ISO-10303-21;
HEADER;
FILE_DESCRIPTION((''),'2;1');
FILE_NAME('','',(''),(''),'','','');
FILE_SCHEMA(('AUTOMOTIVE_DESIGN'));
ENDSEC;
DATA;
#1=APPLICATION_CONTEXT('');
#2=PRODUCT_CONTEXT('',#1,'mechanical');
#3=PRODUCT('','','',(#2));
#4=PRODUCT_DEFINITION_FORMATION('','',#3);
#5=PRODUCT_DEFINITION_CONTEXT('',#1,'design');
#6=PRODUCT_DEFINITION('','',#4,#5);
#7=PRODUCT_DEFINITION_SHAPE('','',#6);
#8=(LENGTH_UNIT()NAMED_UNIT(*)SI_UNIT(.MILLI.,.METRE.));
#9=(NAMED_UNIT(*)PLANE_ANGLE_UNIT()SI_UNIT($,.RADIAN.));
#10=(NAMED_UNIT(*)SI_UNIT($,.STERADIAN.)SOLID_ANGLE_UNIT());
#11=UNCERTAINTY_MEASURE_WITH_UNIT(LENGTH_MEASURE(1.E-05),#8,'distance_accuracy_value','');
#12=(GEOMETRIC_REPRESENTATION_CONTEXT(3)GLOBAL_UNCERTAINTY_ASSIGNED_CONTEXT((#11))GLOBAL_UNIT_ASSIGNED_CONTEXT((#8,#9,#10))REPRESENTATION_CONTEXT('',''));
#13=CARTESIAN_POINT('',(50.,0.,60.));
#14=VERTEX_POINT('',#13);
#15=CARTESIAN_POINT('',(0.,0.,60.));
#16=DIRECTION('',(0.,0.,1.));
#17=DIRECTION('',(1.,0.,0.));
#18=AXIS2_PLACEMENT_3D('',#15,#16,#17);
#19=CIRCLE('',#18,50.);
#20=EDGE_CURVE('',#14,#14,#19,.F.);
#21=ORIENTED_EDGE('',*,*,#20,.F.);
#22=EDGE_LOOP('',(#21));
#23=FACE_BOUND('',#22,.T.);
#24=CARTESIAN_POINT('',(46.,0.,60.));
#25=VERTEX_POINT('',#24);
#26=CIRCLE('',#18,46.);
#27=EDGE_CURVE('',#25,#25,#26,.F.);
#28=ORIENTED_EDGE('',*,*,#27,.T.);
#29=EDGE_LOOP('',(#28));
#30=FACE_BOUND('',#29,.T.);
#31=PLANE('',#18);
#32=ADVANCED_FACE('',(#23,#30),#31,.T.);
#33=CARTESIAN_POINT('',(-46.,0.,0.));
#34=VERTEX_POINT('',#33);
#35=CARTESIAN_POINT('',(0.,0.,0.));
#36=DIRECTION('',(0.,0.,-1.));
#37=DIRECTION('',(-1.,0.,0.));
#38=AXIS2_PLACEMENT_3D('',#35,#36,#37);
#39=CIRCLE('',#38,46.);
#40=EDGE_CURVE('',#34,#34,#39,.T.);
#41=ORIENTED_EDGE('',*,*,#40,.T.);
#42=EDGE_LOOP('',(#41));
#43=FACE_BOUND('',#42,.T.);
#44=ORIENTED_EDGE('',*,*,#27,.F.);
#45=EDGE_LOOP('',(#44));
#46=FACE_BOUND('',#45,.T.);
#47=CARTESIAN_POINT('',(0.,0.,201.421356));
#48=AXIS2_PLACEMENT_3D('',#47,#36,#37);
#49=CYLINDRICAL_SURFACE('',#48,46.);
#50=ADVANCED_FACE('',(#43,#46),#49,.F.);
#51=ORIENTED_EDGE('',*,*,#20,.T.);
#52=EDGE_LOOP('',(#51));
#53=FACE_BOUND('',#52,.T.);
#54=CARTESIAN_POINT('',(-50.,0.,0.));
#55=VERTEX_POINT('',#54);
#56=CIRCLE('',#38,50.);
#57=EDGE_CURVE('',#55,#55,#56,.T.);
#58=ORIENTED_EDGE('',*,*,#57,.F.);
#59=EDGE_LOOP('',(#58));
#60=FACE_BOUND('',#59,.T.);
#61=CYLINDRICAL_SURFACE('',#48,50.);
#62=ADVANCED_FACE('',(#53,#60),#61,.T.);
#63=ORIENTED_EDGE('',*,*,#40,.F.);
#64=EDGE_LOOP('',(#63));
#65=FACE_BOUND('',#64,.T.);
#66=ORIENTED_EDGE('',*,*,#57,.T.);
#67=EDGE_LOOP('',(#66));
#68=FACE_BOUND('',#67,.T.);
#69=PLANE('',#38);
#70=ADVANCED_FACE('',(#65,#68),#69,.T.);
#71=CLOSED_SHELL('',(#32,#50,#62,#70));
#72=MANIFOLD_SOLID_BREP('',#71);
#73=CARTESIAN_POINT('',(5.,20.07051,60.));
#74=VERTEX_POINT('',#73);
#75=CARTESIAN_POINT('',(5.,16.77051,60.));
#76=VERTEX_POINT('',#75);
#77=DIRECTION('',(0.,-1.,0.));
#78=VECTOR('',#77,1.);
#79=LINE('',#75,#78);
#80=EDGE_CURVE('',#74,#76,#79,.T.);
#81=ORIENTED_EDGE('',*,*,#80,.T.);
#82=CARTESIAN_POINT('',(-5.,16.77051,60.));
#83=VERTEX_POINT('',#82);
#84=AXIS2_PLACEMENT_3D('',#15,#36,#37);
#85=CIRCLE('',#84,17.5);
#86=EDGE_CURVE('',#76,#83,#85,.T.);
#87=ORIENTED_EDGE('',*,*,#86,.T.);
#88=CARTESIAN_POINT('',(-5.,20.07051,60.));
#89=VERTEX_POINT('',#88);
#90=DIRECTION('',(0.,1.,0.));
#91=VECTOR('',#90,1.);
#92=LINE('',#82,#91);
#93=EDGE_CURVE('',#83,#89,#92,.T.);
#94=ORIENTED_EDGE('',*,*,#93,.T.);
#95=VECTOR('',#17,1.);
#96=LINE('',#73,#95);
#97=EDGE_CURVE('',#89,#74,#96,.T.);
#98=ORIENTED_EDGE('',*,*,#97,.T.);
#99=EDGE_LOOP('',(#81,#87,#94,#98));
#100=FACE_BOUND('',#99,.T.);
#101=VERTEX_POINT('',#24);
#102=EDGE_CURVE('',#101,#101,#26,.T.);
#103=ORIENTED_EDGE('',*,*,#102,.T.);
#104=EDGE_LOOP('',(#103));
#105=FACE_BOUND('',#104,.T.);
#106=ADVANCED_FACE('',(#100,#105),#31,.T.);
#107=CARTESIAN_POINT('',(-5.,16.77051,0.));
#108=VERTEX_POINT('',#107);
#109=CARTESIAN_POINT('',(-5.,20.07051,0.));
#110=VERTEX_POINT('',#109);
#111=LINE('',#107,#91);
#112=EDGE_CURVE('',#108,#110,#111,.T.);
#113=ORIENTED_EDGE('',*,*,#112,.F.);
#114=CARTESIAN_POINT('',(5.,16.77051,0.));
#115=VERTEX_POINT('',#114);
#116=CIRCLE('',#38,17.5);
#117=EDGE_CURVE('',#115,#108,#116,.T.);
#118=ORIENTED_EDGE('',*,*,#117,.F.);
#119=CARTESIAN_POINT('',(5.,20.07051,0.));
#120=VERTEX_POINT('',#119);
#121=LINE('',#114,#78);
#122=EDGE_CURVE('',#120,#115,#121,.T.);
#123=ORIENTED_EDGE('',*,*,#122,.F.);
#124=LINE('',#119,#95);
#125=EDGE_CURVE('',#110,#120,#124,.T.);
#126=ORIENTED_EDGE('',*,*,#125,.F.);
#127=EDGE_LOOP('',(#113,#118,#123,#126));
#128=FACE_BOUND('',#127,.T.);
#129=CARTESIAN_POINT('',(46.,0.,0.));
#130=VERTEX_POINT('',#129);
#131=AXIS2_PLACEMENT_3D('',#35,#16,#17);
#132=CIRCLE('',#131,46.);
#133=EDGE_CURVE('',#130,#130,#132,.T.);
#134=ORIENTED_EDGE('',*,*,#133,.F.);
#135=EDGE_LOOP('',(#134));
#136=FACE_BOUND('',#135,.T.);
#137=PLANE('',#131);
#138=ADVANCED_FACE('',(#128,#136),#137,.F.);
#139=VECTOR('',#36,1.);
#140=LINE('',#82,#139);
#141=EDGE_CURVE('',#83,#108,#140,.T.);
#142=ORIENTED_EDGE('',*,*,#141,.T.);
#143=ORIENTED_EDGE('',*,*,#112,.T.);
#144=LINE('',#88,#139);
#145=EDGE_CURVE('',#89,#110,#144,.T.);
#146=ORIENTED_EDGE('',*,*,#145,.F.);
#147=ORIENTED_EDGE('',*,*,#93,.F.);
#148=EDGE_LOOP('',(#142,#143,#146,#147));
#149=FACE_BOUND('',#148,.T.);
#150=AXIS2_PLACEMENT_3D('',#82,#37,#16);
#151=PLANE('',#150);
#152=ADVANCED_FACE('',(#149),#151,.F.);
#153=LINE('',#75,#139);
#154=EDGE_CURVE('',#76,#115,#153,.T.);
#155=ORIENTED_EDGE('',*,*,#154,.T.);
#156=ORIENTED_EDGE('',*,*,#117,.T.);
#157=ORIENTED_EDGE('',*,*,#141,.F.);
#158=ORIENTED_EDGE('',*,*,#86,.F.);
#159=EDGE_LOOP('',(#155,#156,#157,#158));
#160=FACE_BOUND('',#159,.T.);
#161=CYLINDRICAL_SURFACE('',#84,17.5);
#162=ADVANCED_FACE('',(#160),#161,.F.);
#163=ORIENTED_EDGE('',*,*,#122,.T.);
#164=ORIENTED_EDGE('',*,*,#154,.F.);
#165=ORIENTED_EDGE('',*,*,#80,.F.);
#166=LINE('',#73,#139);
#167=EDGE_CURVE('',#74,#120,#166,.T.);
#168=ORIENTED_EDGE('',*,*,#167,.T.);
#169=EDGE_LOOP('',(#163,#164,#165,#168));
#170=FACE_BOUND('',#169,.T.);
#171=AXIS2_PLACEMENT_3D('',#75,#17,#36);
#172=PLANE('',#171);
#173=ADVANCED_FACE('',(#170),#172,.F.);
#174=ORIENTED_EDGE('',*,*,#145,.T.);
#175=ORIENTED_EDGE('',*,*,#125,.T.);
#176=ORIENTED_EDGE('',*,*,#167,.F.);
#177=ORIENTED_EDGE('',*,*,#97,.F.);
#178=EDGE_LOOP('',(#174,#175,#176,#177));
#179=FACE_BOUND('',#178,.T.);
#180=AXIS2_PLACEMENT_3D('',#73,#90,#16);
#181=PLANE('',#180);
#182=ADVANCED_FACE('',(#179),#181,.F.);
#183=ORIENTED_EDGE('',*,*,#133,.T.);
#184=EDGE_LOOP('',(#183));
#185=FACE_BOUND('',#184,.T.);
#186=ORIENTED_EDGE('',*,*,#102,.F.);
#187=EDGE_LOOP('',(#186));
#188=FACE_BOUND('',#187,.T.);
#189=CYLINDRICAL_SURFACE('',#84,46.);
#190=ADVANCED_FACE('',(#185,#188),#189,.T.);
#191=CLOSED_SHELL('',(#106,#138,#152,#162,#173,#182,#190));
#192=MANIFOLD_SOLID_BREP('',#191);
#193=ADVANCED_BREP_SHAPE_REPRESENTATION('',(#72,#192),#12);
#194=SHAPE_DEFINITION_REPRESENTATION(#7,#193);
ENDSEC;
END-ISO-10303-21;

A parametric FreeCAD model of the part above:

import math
import FreeCAD as App
import Part
import Sketcher

V = App.Vector
Q = App.Units.Quantity

doc = App.newDocument("Part")
params = doc.addObject("Spreadsheet::Sheet", "Params")
for row, (alias, value) in enumerate([
    ("sketch1_diameter", "92 mm"),
    ("pad1_length", "60 mm"),
    ("sketch2_diameter", "35 mm"),
    ("sketch3_radius", "17.5 mm"),
    ("sketch3_width", "10 mm"),
    ("sketch3_height", "3.3 mm"),
    ("sketch4_diameter", "100 mm"),
    ("sketch4_diameter2", "92 mm"),
    ("pad2_length", "60 mm"),
], start=1):
    params.set(f"A{row}", alias)
    params.set(f"B{row}", "=" + value)
    params.setAlias(f"B{row}", alias)

body = doc.addObject("PartDesign::Body", "Body")

# Sketch on XY plane
sketch1 = doc.addObject("Sketcher::SketchObject", "Sketch")
body.addObject(sketch1)
sketch1.AttachmentSupport = (doc.XY_Plane, [""])
sketch1.MapMode = "FlatFace"
sketch1.addGeometry(Part.Circle(V(0, 0, 0), V(0, 0, 1), 46), False)
sketch1.addConstraint(Sketcher.Constraint("Coincident", 0, 3, -1, 1))
sketch1.addConstraint(Sketcher.Constraint("Diameter", 0, Q("92 mm")))
sketch1.setExpression("Constraints[1]", "Params.sketch1_diameter")
pad1 = doc.addObject("PartDesign::Pad", "Pad")
body.addObject(pad1)
pad1.Profile = sketch1
pad1.setExpression("Length", "Params.pad1_length")

# Sketch on XY plane
sketch2 = doc.addObject("Sketcher::SketchObject", "Sketch001")
body.addObject(sketch2)
sketch2.AttachmentSupport = (doc.XY_Plane, [""])
sketch2.MapMode = "FlatFace"
sketch2.addGeometry(Part.Circle(V(0, 0, 0), V(0, 0, 1), 17.5), False)
sketch2.addConstraint(Sketcher.Constraint("Coincident", 0, 3, -1, 1))
sketch2.addConstraint(Sketcher.Constraint("Diameter", 0, Q("35 mm")))
sketch2.setExpression("Constraints[1]", "Params.sketch2_diameter")
pocket1 = doc.addObject("PartDesign::Pocket", "Pocket")
body.addObject(pocket1)
pocket1.Profile = sketch2
pocket1.Type = "ThroughAll"
pocket1.Reversed = True

# Sketch on XY plane
sketch3 = doc.addObject("Sketcher::SketchObject", "Sketch002")
body.addObject(sketch3)
sketch3.AttachmentSupport = (doc.XY_Plane, [""])
sketch3.MapMode = "FlatFace"
sketch3.addGeometry(Part.LineSegment(V(5, 20.07051, 0), V(5, 16.77051, 0)), False)
sketch3.addGeometry(Part.ArcOfCircle(Part.Circle(V(0, 0, 0), V(0, 0, 1), 17.5), math.radians(73.39845), math.radians(106.60155)), False)
sketch3.addGeometry(Part.LineSegment(V(-5, 16.77051, 0), V(-5, 20.07051, 0)), False)
sketch3.addGeometry(Part.LineSegment(V(-5, 20.07051, 0), V(5, 20.07051, 0)), False)
sketch3.addConstraint(Sketcher.Constraint("Coincident", 0, 2, 1, 1))
sketch3.addConstraint(Sketcher.Constraint("Coincident", 1, 2, 2, 1))
sketch3.addConstraint(Sketcher.Constraint("Coincident", 2, 2, 3, 1))
sketch3.addConstraint(Sketcher.Constraint("Coincident", 3, 2, 0, 1))
sketch3.addConstraint(Sketcher.Constraint("Vertical", 0))
sketch3.addConstraint(Sketcher.Constraint("Vertical", 2))
sketch3.addConstraint(Sketcher.Constraint("Horizontal", 3))
sketch3.addConstraint(Sketcher.Constraint("Coincident", 1, 3, -1, 1))
sketch3.addConstraint(Sketcher.Constraint("Horizontal", 0, 2, 1, 2))
sketch3.addConstraint(Sketcher.Constraint("Radius", 1, Q("17.5 mm")))
sketch3.addConstraint(Sketcher.Constraint("DistanceX", 3, 1, 3, 2, Q("10 mm")))
sketch3.addConstraint(Sketcher.Constraint("DistanceY", 0, 2, 0, 1, Q("3.3 mm")))
sketch3.setExpression("Constraints[9]", "Params.sketch3_radius")
sketch3.setExpression("Constraints[10]", "Params.sketch3_width")
sketch3.setExpression("Constraints[11]", "Params.sketch3_height")
pocket2 = doc.addObject("PartDesign::Pocket", "Pocket001")
body.addObject(pocket2)
pocket2.Profile = sketch3
pocket2.Type = "ThroughAll"
pocket2.Reversed = True
body2 = doc.addObject("PartDesign::Body", "Body001")

# Sketch on XY plane
sketch4 = doc.addObject("Sketcher::SketchObject", "Sketch003")
body2.addObject(sketch4)
sketch4.AttachmentSupport = (doc.getObject("XY_Plane001"), [""])
sketch4.MapMode = "FlatFace"
sketch4.addGeometry(Part.Circle(V(0, 0, 0), V(0, 0, 1), 50), False)
sketch4.addGeometry(Part.Circle(V(0, 0, 0), V(0, 0, 1), 46), False)
sketch4.addConstraint(Sketcher.Constraint("Coincident", 0, 3, -1, 1))
sketch4.addConstraint(Sketcher.Constraint("Coincident", 1, 3, -1, 1))
sketch4.addConstraint(Sketcher.Constraint("Diameter", 0, Q("100 mm")))
sketch4.addConstraint(Sketcher.Constraint("Diameter", 1, Q("92 mm")))
sketch4.setExpression("Constraints[2]", "Params.sketch4_diameter")
sketch4.setExpression("Constraints[3]", "Params.sketch4_diameter2")
pad2 = doc.addObject("PartDesign::Pad", "Pad001")
body2.addObject(pad2)
pad2.Profile = sketch4
pad2.setExpression("Length", "Params.pad2_length")

doc.recompute()
